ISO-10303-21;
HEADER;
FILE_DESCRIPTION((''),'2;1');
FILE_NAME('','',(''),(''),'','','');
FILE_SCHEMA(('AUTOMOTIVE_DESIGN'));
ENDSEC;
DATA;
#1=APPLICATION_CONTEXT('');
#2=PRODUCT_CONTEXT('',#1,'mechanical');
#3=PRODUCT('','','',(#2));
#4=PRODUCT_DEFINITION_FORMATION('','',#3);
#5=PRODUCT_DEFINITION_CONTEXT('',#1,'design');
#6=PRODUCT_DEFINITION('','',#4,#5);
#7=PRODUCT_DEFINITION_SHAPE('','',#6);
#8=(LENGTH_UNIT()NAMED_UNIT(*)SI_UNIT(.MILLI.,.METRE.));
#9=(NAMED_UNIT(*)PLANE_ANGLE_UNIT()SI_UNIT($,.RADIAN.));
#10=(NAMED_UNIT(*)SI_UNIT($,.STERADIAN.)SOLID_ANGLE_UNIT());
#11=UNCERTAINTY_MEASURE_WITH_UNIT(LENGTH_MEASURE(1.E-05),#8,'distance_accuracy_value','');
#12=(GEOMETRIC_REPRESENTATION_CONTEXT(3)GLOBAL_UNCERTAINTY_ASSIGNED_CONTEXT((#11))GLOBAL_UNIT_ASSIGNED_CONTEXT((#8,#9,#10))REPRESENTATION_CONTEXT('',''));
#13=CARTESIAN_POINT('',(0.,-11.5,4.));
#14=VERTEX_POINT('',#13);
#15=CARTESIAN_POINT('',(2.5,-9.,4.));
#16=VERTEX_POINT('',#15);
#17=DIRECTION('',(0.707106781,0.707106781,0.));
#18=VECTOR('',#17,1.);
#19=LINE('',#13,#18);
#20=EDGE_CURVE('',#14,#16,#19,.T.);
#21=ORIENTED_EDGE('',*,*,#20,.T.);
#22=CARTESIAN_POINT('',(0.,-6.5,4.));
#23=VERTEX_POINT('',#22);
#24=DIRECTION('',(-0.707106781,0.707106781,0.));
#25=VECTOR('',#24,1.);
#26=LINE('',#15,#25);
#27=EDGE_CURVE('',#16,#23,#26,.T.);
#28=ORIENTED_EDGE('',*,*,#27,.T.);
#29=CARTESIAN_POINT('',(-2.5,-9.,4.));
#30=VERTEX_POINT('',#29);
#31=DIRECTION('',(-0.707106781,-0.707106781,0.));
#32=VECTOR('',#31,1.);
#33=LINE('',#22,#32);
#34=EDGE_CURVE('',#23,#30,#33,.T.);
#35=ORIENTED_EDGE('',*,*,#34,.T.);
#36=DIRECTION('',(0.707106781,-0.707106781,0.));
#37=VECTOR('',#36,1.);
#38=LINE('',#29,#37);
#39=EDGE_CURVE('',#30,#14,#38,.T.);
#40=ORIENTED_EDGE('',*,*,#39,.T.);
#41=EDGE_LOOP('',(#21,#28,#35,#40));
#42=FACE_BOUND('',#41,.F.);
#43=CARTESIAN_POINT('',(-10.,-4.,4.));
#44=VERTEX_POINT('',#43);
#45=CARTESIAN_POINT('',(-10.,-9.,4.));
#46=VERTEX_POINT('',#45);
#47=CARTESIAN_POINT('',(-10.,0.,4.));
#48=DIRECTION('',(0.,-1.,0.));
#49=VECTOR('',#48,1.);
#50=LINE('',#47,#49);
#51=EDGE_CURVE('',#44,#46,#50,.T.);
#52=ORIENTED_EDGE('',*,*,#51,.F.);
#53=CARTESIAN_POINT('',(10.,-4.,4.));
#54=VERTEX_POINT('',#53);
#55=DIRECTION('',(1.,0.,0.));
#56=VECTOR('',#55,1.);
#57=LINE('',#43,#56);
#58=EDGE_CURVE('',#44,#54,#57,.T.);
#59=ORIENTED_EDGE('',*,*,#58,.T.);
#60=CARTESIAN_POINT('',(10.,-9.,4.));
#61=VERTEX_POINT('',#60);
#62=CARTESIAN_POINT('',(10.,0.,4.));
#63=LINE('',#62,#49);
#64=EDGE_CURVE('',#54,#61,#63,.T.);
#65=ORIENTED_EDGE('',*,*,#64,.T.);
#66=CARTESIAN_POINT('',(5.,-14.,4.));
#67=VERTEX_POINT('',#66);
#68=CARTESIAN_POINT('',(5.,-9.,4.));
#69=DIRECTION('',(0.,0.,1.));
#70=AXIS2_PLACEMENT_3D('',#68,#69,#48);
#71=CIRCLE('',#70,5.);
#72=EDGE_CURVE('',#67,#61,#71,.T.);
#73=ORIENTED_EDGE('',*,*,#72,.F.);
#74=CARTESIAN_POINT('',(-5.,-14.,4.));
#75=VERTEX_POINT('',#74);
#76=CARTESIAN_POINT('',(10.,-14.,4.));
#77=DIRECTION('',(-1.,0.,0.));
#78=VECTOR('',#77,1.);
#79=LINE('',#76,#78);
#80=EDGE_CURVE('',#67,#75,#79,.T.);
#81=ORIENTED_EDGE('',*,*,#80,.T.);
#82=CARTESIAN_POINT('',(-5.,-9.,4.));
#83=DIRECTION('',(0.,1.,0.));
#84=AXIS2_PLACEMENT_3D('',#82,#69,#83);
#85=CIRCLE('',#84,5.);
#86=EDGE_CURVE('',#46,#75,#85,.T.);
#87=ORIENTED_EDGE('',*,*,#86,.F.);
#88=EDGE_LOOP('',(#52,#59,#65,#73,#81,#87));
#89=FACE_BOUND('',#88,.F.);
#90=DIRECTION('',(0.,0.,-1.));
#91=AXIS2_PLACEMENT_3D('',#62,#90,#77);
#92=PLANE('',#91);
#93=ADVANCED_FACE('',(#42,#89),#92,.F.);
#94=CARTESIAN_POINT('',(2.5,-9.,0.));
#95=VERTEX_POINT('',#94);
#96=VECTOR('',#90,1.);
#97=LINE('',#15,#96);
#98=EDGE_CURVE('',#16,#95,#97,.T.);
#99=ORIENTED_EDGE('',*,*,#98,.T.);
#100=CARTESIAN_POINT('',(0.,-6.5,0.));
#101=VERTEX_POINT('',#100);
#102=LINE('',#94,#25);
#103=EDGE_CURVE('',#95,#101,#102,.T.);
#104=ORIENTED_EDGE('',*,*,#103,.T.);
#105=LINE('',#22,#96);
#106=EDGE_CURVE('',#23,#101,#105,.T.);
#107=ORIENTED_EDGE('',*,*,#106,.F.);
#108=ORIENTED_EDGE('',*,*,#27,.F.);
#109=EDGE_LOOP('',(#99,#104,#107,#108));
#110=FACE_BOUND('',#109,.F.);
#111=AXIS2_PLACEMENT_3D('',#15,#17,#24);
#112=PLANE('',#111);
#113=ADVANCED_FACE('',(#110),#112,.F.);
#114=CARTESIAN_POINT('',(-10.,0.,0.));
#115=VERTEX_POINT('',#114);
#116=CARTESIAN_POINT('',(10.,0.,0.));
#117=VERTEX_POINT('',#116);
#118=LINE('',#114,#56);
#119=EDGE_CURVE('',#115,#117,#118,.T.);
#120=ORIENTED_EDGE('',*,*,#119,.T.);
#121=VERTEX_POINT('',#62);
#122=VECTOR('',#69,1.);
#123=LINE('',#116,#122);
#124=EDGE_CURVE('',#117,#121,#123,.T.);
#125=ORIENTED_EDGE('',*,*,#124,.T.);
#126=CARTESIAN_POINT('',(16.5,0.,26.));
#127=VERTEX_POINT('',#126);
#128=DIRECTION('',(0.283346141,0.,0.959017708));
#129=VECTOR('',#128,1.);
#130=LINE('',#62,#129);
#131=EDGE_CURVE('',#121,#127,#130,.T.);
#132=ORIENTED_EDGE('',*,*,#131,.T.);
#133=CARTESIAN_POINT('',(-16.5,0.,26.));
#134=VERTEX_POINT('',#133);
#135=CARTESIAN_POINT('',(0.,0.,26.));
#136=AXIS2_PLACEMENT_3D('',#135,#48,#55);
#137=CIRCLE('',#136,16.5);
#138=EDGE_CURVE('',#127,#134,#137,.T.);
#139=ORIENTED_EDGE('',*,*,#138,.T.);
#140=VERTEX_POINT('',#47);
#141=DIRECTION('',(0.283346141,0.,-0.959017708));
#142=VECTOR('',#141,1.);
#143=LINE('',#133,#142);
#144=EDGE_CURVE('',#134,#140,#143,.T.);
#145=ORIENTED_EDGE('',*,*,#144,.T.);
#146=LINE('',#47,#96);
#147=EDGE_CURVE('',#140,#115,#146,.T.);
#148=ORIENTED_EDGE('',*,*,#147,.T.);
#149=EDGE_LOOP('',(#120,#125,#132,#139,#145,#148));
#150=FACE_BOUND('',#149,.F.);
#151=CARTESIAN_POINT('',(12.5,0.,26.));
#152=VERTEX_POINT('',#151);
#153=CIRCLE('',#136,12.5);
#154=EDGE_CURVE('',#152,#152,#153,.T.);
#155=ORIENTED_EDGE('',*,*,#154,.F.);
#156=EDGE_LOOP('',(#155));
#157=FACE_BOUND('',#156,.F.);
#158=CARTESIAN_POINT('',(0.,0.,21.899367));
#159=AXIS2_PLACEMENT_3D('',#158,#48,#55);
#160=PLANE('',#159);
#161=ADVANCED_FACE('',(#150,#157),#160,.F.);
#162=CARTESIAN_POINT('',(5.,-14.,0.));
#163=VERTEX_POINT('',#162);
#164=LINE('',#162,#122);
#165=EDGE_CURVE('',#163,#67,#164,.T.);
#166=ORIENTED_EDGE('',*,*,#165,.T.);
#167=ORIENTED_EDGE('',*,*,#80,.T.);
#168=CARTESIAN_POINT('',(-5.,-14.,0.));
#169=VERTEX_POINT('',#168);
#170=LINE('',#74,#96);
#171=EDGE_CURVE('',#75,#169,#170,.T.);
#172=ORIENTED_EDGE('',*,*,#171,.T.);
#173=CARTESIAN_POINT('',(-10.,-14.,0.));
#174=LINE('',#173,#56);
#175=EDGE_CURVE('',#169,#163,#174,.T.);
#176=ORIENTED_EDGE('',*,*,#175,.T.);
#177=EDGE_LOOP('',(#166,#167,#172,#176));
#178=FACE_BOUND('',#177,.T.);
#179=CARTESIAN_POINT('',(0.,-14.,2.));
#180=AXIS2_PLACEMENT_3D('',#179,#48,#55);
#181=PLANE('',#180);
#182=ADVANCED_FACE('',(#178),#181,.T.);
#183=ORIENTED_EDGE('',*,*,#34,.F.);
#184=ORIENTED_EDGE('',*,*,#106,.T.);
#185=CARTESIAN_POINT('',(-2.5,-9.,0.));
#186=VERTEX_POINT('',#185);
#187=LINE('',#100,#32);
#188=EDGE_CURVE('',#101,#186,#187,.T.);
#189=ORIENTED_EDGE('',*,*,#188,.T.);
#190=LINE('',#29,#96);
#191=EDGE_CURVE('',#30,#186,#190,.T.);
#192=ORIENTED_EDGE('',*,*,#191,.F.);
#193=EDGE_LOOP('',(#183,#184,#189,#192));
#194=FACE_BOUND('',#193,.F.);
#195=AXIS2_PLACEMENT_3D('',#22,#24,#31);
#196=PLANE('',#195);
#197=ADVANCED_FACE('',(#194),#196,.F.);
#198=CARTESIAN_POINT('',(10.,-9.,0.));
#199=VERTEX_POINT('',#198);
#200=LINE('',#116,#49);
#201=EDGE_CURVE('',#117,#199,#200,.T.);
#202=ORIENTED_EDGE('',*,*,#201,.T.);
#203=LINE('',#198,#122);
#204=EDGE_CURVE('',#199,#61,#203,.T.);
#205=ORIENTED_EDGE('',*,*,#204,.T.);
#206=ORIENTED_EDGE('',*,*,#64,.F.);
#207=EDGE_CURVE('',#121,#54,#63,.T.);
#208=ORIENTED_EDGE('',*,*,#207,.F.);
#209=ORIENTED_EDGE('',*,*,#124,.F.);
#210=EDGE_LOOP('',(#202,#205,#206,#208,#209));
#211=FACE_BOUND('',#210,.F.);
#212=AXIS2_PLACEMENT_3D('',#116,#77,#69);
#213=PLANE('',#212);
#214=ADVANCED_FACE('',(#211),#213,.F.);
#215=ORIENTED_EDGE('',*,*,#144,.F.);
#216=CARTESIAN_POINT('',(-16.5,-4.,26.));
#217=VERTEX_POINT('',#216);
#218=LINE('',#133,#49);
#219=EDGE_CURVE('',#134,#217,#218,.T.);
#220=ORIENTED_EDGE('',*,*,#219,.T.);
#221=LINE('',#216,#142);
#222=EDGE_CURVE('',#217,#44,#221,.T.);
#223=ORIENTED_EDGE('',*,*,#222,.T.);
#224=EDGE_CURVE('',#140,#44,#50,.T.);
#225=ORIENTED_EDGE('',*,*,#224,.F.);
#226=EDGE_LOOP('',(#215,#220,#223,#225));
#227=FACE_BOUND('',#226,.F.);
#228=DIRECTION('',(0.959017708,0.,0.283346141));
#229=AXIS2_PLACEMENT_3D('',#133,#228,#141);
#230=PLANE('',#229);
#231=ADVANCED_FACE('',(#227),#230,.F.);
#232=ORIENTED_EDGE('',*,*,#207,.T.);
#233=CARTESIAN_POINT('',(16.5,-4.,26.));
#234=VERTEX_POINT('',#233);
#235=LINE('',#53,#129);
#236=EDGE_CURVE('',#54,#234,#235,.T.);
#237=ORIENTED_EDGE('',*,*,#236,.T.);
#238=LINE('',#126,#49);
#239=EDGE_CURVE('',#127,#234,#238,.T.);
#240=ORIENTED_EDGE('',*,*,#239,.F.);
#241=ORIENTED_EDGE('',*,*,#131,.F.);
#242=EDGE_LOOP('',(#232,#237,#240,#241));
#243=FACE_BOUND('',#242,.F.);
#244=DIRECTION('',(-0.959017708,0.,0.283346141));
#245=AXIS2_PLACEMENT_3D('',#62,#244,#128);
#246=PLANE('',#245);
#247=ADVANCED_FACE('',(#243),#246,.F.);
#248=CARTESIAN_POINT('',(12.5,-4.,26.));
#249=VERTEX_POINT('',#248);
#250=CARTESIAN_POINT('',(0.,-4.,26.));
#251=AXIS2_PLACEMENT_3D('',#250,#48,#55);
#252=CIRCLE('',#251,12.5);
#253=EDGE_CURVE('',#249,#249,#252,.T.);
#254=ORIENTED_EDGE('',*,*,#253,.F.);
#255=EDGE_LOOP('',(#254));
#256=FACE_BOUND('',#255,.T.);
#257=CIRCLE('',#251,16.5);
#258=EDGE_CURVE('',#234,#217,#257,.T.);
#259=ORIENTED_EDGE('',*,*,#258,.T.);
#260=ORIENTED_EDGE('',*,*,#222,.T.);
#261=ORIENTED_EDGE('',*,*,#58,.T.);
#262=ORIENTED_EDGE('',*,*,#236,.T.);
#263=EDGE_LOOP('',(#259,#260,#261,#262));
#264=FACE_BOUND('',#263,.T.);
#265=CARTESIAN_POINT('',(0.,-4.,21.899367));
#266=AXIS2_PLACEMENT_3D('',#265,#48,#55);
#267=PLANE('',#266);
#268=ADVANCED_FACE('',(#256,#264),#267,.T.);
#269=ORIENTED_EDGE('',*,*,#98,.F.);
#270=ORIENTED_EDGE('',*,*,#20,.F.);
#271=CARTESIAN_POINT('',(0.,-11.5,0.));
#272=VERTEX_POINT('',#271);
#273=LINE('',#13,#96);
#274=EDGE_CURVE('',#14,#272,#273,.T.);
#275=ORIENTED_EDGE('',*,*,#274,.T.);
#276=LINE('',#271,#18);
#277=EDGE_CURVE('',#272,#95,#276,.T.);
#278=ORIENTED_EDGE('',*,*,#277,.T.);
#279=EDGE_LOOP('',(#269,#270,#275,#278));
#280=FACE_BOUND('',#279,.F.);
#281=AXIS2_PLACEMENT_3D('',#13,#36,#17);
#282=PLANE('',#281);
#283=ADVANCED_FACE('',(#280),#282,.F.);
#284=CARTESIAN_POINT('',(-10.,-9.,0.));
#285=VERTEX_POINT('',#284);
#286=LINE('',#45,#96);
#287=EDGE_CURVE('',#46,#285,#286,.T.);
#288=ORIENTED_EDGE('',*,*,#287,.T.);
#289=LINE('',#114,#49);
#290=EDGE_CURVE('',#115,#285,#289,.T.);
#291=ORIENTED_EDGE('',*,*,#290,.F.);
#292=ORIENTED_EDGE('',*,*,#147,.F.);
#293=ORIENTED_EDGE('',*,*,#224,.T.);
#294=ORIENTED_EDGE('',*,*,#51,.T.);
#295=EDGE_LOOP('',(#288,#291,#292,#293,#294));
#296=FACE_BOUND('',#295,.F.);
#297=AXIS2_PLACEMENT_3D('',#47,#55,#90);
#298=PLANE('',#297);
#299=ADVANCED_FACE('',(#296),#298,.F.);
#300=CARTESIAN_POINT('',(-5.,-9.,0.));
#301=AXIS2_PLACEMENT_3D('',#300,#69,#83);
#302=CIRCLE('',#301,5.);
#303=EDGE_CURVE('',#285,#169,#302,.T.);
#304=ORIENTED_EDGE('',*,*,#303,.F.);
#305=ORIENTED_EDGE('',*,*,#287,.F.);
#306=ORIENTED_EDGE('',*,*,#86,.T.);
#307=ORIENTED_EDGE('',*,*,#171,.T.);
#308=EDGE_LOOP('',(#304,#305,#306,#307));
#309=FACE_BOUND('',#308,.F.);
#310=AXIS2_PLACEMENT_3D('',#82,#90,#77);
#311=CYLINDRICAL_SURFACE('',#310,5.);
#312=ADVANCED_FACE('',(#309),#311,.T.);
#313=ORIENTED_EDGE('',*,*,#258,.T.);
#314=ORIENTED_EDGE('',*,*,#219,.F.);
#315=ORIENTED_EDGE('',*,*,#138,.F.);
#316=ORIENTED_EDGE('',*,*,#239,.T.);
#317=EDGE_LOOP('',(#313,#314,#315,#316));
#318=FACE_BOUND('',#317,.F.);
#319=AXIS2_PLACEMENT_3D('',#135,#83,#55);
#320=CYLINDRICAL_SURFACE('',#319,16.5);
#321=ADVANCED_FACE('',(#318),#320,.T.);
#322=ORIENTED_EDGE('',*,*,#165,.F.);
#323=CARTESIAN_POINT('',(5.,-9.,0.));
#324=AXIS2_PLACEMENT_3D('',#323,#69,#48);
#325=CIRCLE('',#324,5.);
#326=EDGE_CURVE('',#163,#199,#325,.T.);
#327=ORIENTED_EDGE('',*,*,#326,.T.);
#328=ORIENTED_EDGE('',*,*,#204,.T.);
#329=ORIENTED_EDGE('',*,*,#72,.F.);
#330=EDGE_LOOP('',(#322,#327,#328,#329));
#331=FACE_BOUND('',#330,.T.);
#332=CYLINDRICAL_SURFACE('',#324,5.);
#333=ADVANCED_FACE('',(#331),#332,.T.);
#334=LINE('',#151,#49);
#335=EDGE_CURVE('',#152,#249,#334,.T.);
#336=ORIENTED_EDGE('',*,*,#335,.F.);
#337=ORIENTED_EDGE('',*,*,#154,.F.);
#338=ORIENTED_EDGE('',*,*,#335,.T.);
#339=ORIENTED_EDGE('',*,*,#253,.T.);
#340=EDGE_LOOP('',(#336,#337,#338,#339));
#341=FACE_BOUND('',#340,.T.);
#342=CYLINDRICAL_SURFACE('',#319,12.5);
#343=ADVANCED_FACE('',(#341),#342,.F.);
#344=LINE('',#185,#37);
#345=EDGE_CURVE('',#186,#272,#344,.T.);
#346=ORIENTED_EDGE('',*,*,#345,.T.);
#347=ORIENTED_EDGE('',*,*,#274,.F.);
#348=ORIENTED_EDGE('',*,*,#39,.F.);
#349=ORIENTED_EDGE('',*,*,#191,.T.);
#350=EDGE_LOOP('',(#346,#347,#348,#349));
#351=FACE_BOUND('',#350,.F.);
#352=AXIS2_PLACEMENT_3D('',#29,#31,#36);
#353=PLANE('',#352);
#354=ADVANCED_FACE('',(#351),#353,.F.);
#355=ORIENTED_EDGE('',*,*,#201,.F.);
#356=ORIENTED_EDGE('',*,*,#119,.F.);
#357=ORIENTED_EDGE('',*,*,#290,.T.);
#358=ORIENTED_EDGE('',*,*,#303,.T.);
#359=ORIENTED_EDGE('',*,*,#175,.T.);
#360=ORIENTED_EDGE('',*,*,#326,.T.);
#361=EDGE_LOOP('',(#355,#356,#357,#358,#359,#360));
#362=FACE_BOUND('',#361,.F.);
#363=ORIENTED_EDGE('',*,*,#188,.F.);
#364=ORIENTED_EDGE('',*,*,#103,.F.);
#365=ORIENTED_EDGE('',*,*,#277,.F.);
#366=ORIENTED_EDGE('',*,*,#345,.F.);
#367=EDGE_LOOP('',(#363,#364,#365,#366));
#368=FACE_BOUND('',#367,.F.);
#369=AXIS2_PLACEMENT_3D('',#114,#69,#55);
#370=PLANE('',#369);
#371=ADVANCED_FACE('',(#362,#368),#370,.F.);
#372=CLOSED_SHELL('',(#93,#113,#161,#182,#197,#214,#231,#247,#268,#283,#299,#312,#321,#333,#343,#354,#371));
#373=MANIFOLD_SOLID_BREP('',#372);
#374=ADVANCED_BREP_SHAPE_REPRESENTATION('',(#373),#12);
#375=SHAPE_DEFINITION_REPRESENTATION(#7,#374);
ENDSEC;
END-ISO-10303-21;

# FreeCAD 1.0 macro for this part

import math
import FreeCAD as App
import Part
import Sketcher
from FreeCAD import Vector
Q = App.Units.Quantity


def edges_at(feature, points):
    """Names of the edges that pass closest to the given points."""
    edges = feature.Shape.Edges
    near = lambda p: min(range(len(edges)), key=lambda i: edges[i].distToShape(Part.Vertex(*p))[0])
    return sorted({f"Edge{near(p) + 1}" for p in points})

doc = App.newDocument("Part")
body = doc.addObject("PartDesign::Body", "Body")

sketch1 = body.newObject("Sketcher::SketchObject", "Sketch")
sketch1.AttachmentSupport = (doc.getObject("XZ_Plane"), [""])
sketch1.MapMode = "FlatFace"
sketch1.addGeometry(Part.LineSegment(Vector(-10, 0, 0), Vector(10, 0, 0)), False)
sketch1.addGeometry(Part.LineSegment(Vector(10, 0, 0), Vector(10, 4, 0)), False)
sketch1.addGeometry(Part.LineSegment(Vector(10, 4, 0), Vector(-10, 4, 0)), False)
sketch1.addGeometry(Part.LineSegment(Vector(-10, 4, 0), Vector(-10, 0, 0)), False)
sketch1.addConstraint(Sketcher.Constraint("Coincident", 0, 2, 1, 1))
sketch1.addConstraint(Sketcher.Constraint("Coincident", 1, 2, 2, 1))
sketch1.addConstraint(Sketcher.Constraint("Coincident", 2, 2, 3, 1))
sketch1.addConstraint(Sketcher.Constraint("Coincident", 3, 2, 0, 1))
sketch1.addConstraint(Sketcher.Constraint("Horizontal", 0))
sketch1.addConstraint(Sketcher.Constraint("Vertical", 1))
sketch1.addConstraint(Sketcher.Constraint("Horizontal", 2))
sketch1.addConstraint(Sketcher.Constraint("Vertical", 3))
sketch1.addConstraint(Sketcher.Constraint("Symmetric", 0, 2, 3, 2, -1, 1))
sketch1.addConstraint(Sketcher.Constraint("DistanceX", 0, 1, 0, 2, Q("20 mm")))
sketch1.addConstraint(Sketcher.Constraint("DistanceY", 1, 1, 1, 2, Q("4 mm")))
pad1 = body.newObject("PartDesign::Pad", "Pad")
pad1.Profile = sketch1
pad1.Length = 14

sketch2 = body.newObject("Sketcher::SketchObject", "Sketch001")
sketch2.AttachmentSupport = (doc.getObject("XZ_Plane"), [""])
sketch2.MapMode = "FlatFace"
sketch2.addGeometry(Part.LineSegment(Vector(-16, 26, 0), Vector(-10, 4, 0)), False)
sketch2.addGeometry(Part.LineSegment(Vector(-10, 4, 0), Vector(10, 4, 0)), False)
sketch2.addGeometry(Part.LineSegment(Vector(10, 4, 0), Vector(16, 26, 0)), False)
sketch2.addGeometry(Part.ArcOfCircle(Part.Circle(Vector(0, 26, 0), Vector(0, 0, 1), 16), math.radians(0), math.radians(180)), False)
sketch2.addGeometry(Part.Circle(Vector(0, 26, 0), Vector(0, 0, 1), 12), False)
sketch2.addConstraint(Sketcher.Constraint("Coincident", 0, 2, 1, 1))
sketch2.addConstraint(Sketcher.Constraint("Coincident", 1, 2, 2, 1))
sketch2.addConstraint(Sketcher.Constraint("Coincident", 2, 2, 3, 1))
sketch2.addConstraint(Sketcher.Constraint("Coincident", 3, 2, 0, 1))
sketch2.addConstraint(Sketcher.Constraint("Horizontal", 1))
sketch2.addConstraint(Sketcher.Constraint("Coincident", 4, 3, 3, 3))
sketch2.addConstraint(Sketcher.Constraint("Symmetric", 2, 2, 3, 2, -2))
sketch2.addConstraint(Sketcher.Constraint("Horizontal", 4, 3, 2, 2))
sketch2.addConstraint(Sketcher.Constraint("Equal", 0, 2))
sketch2.addConstraint(Sketcher.Constraint("Diameter", 4, Q("25 mm")))
sketch2.addConstraint(Sketcher.Constraint("Radius", 3, Q("16.5 mm")))
sketch2.addConstraint(Sketcher.Constraint("DistanceX", 1, 1, 1, 2, Q("20 mm")))
sketch2.addConstraint(Sketcher.Constraint("DistanceY", -1, 1, 3, 3, Q("26 mm")))
sketch2.addConstraint(Sketcher.Constraint("DistanceY", -1, 1, 0, 2, Q("4 mm")))
pad2 = body.newObject("PartDesign::Pad", "Pad001")
pad2.Profile = sketch2
pad2.Length = 4
doc.recompute()

fillet = body.newObject("PartDesign::Fillet", "Fillet")
fillet.Base = (pad2, edges_at(pad2, [(-10, -14, 2), (10, -14, 2)]))
fillet.Radius = 5

sketch3 = body.newObject("Sketcher::SketchObject", "Sketch002")
sketch3.AttachmentSupport = (doc.getObject("XY_Plane"), [""])
sketch3.MapMode = "FlatFace"
sketch3.AttachmentOffset = App.Placement(Vector(0, 0, 4), App.Rotation())
sketch3.addGeometry(Part.LineSegment(Vector(0, -11.5, 0), Vector(2.5, -9, 0)), False)
sketch3.addGeometry(Part.LineSegment(Vector(2.5, -9, 0), Vector(0, -6.5, 0)), False)
sketch3.addGeometry(Part.LineSegment(Vector(0, -6.5, 0), Vector(-2.5, -9, 0)), False)
sketch3.addGeometry(Part.LineSegment(Vector(-2.5, -9, 0), Vector(0, -11.5, 0)), False)
sketch3.addConstraint(Sketcher.Constraint("Coincident", 0, 2, 1, 1))
sketch3.addConstraint(Sketcher.Constraint("Coincident", 1, 2, 2, 1))
sketch3.addConstraint(Sketcher.Constraint("Coincident", 2, 2, 3, 1))
sketch3.addConstraint(Sketcher.Constraint("Coincident", 3, 2, 0, 1))
sketch3.addConstraint(Sketcher.Constraint("Symmetric", 0, 2, 2, 2, -2))
sketch3.addConstraint(Sketcher.Constraint("PointOnObject", 1, 2, -2))
sketch3.addConstraint(Sketcher.Constraint("PointOnObject", 3, 2, -2))
sketch3.addConstraint(Sketcher.Constraint("Perpendicular", 0, 1))
sketch3.addConstraint(Sketcher.Constraint("Perpendicular", 1, 2))
sketch3.addConstraint(Sketcher.Constraint("DistanceY", 0, 2, -1, 1, Q("9 mm")))
sketch3.addConstraint(Sketcher.Constraint("DistanceX", 2, 2, 0, 2, Q("5 mm")))
pocket1 = body.newObject("PartDesign::Pocket", "Pocket")
pocket1.Profile = sketch3
pocket1.Length = 4

doc.recompute()
